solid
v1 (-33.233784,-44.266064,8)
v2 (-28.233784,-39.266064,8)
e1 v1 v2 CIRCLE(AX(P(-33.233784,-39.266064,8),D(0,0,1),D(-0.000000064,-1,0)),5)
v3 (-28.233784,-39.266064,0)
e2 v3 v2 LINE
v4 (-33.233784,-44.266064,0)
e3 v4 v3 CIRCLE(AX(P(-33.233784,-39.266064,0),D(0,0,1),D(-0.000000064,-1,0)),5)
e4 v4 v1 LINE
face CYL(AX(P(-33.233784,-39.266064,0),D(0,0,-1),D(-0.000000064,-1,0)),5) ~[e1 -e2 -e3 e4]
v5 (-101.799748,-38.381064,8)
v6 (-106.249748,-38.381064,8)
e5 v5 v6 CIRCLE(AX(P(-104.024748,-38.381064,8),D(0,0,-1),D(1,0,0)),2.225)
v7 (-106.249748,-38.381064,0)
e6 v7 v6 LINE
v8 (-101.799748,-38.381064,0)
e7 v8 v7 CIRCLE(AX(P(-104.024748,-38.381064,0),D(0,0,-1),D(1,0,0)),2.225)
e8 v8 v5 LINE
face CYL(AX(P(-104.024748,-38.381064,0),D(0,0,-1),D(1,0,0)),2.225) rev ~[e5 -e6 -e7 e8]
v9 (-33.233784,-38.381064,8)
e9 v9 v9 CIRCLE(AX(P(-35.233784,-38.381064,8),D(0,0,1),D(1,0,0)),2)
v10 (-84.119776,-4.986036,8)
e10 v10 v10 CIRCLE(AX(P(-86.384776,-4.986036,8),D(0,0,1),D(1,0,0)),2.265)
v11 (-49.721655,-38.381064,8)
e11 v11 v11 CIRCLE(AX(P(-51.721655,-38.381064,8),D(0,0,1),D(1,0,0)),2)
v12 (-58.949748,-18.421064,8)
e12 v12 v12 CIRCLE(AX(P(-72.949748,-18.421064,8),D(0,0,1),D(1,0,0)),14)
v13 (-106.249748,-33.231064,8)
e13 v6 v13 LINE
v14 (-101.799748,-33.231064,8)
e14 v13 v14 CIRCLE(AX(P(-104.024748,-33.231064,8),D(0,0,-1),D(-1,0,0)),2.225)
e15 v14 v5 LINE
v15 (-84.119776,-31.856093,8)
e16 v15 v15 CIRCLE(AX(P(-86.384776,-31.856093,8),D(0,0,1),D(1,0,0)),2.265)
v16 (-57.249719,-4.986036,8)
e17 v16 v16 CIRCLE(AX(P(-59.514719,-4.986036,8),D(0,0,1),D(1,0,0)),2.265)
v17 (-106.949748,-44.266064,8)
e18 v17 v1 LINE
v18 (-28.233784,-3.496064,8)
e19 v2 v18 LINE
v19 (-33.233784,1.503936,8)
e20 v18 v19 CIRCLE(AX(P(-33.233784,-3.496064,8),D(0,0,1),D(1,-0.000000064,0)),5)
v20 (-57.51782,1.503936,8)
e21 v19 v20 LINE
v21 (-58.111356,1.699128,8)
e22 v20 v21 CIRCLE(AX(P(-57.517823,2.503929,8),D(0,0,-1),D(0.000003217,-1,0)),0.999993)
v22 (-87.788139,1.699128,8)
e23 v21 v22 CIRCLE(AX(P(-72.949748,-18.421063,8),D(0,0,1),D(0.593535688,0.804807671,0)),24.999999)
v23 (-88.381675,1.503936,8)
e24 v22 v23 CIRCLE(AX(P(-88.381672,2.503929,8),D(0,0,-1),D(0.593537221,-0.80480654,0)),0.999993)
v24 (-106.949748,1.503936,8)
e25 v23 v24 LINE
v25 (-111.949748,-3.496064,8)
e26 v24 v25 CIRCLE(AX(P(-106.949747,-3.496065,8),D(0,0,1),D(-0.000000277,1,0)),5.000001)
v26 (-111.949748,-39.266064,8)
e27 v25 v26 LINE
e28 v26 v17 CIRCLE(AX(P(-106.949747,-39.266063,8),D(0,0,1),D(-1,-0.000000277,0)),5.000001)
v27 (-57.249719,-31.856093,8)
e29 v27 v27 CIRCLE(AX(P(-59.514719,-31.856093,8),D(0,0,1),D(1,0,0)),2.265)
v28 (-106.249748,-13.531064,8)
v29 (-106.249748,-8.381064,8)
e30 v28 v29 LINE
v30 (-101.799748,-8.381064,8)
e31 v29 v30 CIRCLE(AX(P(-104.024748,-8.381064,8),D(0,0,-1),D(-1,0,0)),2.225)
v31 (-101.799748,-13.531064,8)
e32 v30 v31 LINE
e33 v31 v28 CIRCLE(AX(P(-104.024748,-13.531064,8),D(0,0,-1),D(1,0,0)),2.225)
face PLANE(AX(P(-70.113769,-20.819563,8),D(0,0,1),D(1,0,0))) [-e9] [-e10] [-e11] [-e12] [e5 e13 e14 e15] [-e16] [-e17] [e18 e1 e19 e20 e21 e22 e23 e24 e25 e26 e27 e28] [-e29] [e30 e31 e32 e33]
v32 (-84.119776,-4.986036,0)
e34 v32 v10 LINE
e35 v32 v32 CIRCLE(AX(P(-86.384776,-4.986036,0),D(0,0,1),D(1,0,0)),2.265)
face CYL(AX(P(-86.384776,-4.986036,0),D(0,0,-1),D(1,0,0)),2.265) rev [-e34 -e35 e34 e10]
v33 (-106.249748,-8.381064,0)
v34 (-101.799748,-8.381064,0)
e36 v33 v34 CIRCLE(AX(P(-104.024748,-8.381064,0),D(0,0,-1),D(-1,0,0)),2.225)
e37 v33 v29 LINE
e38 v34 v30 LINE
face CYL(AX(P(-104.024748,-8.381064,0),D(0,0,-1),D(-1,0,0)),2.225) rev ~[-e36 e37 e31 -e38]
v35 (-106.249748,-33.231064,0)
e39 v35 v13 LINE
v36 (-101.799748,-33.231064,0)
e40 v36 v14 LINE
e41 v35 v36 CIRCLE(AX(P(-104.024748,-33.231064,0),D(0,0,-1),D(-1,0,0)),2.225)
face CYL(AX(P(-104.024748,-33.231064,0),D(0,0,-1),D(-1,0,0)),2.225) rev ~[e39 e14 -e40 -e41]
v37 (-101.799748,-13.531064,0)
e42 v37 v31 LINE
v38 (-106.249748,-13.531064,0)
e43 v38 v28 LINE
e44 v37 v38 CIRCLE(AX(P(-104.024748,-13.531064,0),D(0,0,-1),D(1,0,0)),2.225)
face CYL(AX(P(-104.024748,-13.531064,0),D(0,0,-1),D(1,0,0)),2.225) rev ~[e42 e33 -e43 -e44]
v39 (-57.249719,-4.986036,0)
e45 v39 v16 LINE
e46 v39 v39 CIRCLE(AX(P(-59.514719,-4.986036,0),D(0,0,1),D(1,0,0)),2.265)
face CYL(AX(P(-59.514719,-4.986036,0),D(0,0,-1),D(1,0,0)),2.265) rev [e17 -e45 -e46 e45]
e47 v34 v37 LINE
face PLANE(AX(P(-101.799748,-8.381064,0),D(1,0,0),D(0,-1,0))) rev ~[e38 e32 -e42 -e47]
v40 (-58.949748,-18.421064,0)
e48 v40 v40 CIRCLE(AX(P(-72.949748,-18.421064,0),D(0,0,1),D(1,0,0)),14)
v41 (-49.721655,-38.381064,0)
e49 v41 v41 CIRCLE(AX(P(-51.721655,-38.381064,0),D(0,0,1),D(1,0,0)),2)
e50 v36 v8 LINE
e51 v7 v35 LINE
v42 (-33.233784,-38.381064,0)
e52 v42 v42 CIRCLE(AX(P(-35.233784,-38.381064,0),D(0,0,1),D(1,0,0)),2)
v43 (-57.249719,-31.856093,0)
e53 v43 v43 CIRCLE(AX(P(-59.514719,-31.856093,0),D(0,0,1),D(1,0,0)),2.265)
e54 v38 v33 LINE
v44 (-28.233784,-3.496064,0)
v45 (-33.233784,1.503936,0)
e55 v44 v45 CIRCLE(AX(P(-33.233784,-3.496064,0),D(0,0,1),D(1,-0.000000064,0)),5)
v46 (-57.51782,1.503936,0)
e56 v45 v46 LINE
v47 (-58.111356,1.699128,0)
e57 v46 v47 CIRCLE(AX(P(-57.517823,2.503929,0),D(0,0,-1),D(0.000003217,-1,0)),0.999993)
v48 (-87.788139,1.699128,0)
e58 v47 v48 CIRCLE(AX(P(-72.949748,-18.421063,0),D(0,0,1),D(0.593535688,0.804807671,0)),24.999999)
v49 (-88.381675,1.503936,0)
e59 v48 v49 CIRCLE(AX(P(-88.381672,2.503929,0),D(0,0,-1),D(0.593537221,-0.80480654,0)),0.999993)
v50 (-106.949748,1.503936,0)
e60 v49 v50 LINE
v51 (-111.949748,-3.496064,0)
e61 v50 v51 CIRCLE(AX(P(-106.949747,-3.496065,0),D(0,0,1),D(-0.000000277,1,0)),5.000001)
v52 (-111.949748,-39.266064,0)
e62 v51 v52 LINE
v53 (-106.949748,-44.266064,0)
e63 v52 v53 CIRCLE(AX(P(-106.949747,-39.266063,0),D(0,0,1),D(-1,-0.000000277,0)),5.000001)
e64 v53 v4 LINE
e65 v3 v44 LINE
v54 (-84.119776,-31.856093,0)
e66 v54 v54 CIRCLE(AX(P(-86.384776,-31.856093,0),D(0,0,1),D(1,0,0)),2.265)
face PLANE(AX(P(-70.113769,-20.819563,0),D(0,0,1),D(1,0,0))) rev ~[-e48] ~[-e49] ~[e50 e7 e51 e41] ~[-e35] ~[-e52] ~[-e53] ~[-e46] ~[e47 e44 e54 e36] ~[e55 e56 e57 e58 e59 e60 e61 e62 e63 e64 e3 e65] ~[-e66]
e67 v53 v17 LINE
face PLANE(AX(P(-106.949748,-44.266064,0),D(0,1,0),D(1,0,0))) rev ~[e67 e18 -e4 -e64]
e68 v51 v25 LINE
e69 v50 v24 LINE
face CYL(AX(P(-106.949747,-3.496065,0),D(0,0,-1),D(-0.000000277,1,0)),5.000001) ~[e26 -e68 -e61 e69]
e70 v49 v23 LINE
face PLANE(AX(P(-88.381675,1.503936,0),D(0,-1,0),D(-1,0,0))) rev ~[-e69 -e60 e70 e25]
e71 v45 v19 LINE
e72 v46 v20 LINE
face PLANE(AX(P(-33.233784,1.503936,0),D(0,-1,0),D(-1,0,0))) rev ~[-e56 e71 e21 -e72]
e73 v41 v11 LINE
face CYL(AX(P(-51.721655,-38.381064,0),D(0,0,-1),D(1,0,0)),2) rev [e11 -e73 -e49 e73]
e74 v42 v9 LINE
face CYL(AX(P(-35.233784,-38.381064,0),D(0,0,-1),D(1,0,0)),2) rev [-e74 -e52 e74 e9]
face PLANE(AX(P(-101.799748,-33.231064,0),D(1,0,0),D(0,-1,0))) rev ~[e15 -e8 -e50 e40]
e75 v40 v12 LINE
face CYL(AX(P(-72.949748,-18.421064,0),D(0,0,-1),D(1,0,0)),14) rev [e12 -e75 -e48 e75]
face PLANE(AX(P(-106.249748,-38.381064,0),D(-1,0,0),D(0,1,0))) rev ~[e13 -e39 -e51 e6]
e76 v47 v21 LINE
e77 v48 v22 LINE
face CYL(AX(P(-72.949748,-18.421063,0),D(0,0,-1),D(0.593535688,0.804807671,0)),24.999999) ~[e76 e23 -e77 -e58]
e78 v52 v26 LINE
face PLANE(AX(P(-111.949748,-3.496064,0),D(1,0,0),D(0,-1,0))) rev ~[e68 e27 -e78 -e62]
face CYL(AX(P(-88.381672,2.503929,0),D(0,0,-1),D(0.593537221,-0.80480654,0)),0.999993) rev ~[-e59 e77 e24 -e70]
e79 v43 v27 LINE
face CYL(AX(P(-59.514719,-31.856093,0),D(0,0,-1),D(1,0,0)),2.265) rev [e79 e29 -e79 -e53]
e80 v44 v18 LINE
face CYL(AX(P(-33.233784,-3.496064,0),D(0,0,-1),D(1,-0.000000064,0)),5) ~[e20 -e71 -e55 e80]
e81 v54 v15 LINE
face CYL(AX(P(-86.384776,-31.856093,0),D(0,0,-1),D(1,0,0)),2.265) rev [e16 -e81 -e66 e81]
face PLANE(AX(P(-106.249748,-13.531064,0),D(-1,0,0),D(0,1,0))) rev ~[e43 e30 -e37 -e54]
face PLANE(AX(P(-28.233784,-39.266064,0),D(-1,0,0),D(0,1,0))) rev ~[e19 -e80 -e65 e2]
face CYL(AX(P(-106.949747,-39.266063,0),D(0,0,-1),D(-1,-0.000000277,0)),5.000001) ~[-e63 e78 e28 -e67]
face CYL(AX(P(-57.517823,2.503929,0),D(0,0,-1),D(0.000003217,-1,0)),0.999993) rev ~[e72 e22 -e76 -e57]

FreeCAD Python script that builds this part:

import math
import FreeCAD as App
import Part
import Sketcher
from FreeCAD import Vector
Q = App.Units.Quantity

doc = App.newDocument("Part")
body = doc.addObject("PartDesign::Body", "Body")

# Sketch on XY plane
sketch1 = doc.addObject("Sketcher::SketchObject", "Sketch")
body.addObject(sketch1)
sketch1.AttachmentSupport = (doc.XY_Plane, [""])
sketch1.MapMode = "FlatFace"
sketch1.addGeometry(Part.LineSegment(Vector(-88.381675, 1.503936, 0), Vector(-106.949748, 1.503936, 0)), False)
sketch1.addGeometry(Part.ArcOfCircle(Part.Circle(Vector(-106.949747, -3.496065, 0), Vector(0, 0, 1), 5.000001), math.radians(90.000016), math.radians(179.999984)), False)
sketch1.addGeometry(Part.LineSegment(Vector(-111.949748, -3.496064, 0), Vector(-111.949748, -39.266064, 0)), False)
sketch1.addGeometry(Part.ArcOfCircle(Part.Circle(Vector(-106.949747, -39.266063, 0), Vector(0, 0, 1), 5.000001), math.radians(-179.999984), math.radians(-90.000016)), False)
sketch1.addGeometry(Part.LineSegment(Vector(-106.949748, -44.266064, 0), Vector(-33.233784, -44.266064, 0)), False)
sketch1.addGeometry(Part.ArcOfCircle(Part.Circle(Vector(-33.233784, -39.266064, 0), Vector(0, 0, 1), 5), math.radians(-90.000004), math.radians(0.000004)), False)
sketch1.addGeometry(Part.LineSegment(Vector(-28.233784, -39.266064, 0), Vector(-28.233784, -3.496064, 0)), False)
sketch1.addGeometry(Part.ArcOfCircle(Part.Circle(Vector(-33.233784, -3.496064, 0), Vector(0, 0, 1), 5), math.radians(-0.000004), math.radians(90.000004)), False)
sketch1.addGeometry(Part.LineSegment(Vector(-33.233784, 1.503936, 0), Vector(-57.51782, 1.503936, 0)), False)
sketch1.addGeometry(Part.ArcOfCircle(Part.Circle(Vector(-57.517823, 2.503929, 0), Vector(0, 0, 1), 0.999993), math.radians(-126.408424), math.radians(-89.999816)), False)
sketch1.addGeometry(Part.ArcOfCircle(Part.Circle(Vector(-72.949748, -18.421063, 0), Vector(0, 0, 1), 24.999999), math.radians(53.591685), math.radians(126.408315)), False)
sketch1.addGeometry(Part.ArcOfCircle(Part.Circle(Vector(-88.381672, 2.503929, 0), Vector(0, 0, 1), 0.999993), math.radians(-90.000184), math.radians(-53.591576)), False)
sketch1.addGeometry(Part.ArcOfCircle(Part.Circle(Vector(-104.024748, -33.231064, 0), Vector(0, 0, 1), 2.225), math.radians(0), math.radians(180)), False)
sketch1.addGeometry(Part.LineSegment(Vector(-101.799748, -33.231064, 0), Vector(-101.799748, -38.381064, 0)), False)
sketch1.addGeometry(Part.ArcOfCircle(Part.Circle(Vector(-104.024748, -38.381064, 0), Vector(0, 0, 1), 2.225), math.radians(180), math.radians(360)), False)
sketch1.addGeometry(Part.LineSegment(Vector(-106.249748, -38.381064, 0), Vector(-106.249748, -33.231064, 0)), False)
sketch1.addGeometry(Part.Circle(Vector(-86.384776, -31.856093, 0), Vector(0, 0, 1), 2.265), False)
sketch1.addGeometry(Part.Circle(Vector(-51.721655, -38.381064, 0), Vector(0, 0, 1), 2), False)
sketch1.addGeometry(Part.Circle(Vector(-59.514719, -31.856093, 0), Vector(0, 0, 1), 2.265), False)
sketch1.addGeometry(Part.Circle(Vector(-35.233784, -38.381064, 0), Vector(0, 0, 1), 2), False)
sketch1.addGeometry(Part.Circle(Vector(-72.949748, -18.421064, 0), Vector(0, 0, 1), 14), False)
sketch1.addGeometry(Part.ArcOfCircle(Part.Circle(Vector(-104.024748, -13.531064, 0), Vector(0, 0, 1), 2.225), math.radians(180), math.radians(360)), False)
sketch1.addGeometry(Part.LineSegment(Vector(-106.249748, -13.531064, 0), Vector(-106.249748, -8.381064, 0)), False)
sketch1.addGeometry(Part.ArcOfCircle(Part.Circle(Vector(-104.024748, -8.381064, 0), Vector(0, 0, 1), 2.225), math.radians(0), math.radians(180)), False)
sketch1.addGeometry(Part.LineSegment(Vector(-101.799748, -8.381064, 0), Vector(-101.799748, -13.531064, 0)), False)
sketch1.addGeometry(Part.Circle(Vector(-86.384776, -4.986036, 0), Vector(0, 0, 1), 2.265), False)
sketch1.addGeometry(Part.Circle(Vector(-59.514719, -4.986036, 0), Vector(0, 0, 1), 2.265), False)
sketch1.addConstraint(Sketcher.Constraint("Tangent", 0, 2, 1, 1))
sketch1.addConstraint(Sketcher.Constraint("Tangent", 1, 2, 2, 1))
sketch1.addConstraint(Sketcher.Constraint("Tangent", 2, 2, 3, 1))
sketch1.addConstraint(Sketcher.Constraint("Tangent", 3, 2, 4, 1))
sketch1.addConstraint(Sketcher.Constraint("Tangent", 4, 2, 5, 1))
sketch1.addConstraint(Sketcher.Constraint("Tangent", 5, 2, 6, 1))
sketch1.addConstraint(Sketcher.Constraint("Tangent", 6, 2, 7, 1))
sketch1.addConstraint(Sketcher.Constraint("Tangent", 7, 2, 8, 1))
sketch1.addConstraint(Sketcher.Constraint("Coincident", 8, 2, 9, 2))
sketch1.addConstraint(Sketcher.Constraint("Tangent", 9, 1, 10, 1))
sketch1.addConstraint(Sketcher.Constraint("Tangent", 10, 2, 11, 2))
sketch1.addConstraint(Sketcher.Constraint("Coincident", 11, 1, 0, 1))
sketch1.addConstraint(Sketcher.Constraint("Tangent", 12, 1, 13, 1))
sketch1.addConstraint(Sketcher.Constraint("Tangent", 13, 2, 14, 2))
sketch1.addConstraint(Sketcher.Constraint("Tangent", 14, 1, 15, 1))
sketch1.addConstraint(Sketcher.Constraint("Tangent", 15, 2, 12, 2))
sketch1.addConstraint(Sketcher.Constraint("Tangent", 21, 1, 22, 1))
sketch1.addConstraint(Sketcher.Constraint("Tangent", 22, 2, 23, 2))
sketch1.addConstraint(Sketcher.Constraint("Tangent", 23, 1, 24, 1))
sketch1.addConstraint(Sketcher.Constraint("Tangent", 24, 2, 21, 2))
sketch1.addConstraint(Sketcher.Constraint("Horizontal", 0))
sketch1.addConstraint(Sketcher.Constraint("Vertical", 2))
sketch1.addConstraint(Sketcher.Constraint("Horizontal", 4))
sketch1.addConstraint(Sketcher.Constraint("Vertical", 6))
sketch1.addConstraint(Sketcher.Constraint("Horizontal", 8))
sketch1.addConstraint(Sketcher.Constraint("Vertical", 13))
sketch1.addConstraint(Sketcher.Constraint("Vertical", 15))
sketch1.addConstraint(Sketcher.Constraint("Vertical", 22))
sketch1.addConstraint(Sketcher.Constraint("Vertical", 24))
sketch1.addConstraint(Sketcher.Constraint("Coincident", 20, 3, 10, 3))
sketch1.addConstraint(Sketcher.Constraint("Equal", 1, 3))
sketch1.addConstraint(Sketcher.Constraint("Equal", 3, 5))
sketch1.addConstraint(Sketcher.Constraint("Equal", 5, 7))
sketch1.addConstraint(Sketcher.Constraint("Equal", 9, 11))
sketch1.addConstraint(Sketcher.Constraint("Equal", 16, 18))
sketch1.addConstraint(Sketcher.Constraint("Equal", 17, 19))
sketch1.addConstraint(Sketcher.Constraint("Equal", 14, 21))
sketch1.addConstraint(Sketcher.Constraint("Equal", 18, 25))
sketch1.addConstraint(Sketcher.Constraint("Equal", 25, 26))
sketch1.addConstraint(Sketcher.Constraint("Horizontal", 1, 3, 7, 3))
sketch1.addConstraint(Sketcher.Constraint("Horizontal", 14, 3, 17, 3))
sketch1.addConstraint(Sketcher.Constraint("Horizontal", 16, 3, 18, 3))
sketch1.addConstraint(Sketcher.Constraint("Horizontal", 17, 3, 19, 3))
sketch1.addConstraint(Sketcher.Constraint("Horizontal", 25, 3, 26, 3))
sketch1.addConstraint(Sketcher.Constraint("Vertical", 14, 3, 21, 3))
sketch1.addConstraint(Sketcher.Constraint("Vertical", 16, 3, 25, 3))
sketch1.addConstraint(Sketcher.Constraint("Vertical", 18, 3, 26, 3))
sketch1.addConstraint(Sketcher.Constraint("Equal", 15, 22))
sketch1.addConstraint(Sketcher.Constraint("Diameter", 17, Q("4 mm")))
sketch1.addConstraint(Sketcher.Constraint("Diameter", 20, Q("28 mm")))
sketch1.addConstraint(Sketcher.Constraint("Radius", 1, Q("5.000001 mm")))
sketch1.addConstraint(Sketcher.Constraint("Radius", 10, Q("24.999999 mm")))
sketch1.addConstraint(Sketcher.Constraint("Diameter", 16, Q("4.53 mm")))
sketch1.addConstraint(Sketcher.Constraint("Radius", 12, Q("2.225 mm")))
sketch1.addConstraint(Sketcher.Constraint("DistanceX", 1, 3, 10, 3, Q("33.999999 mm")))
sketch1.addConstraint(Sketcher.Constraint("DistanceX", 19, 3, 5, 3, Q("2 mm")))
sketch1.addConstraint(Sketcher.Constraint("DistanceY", 2, 2, 2, 1, Q("35.77 mm")))
sketch1.addConstraint(Sketcher.Constraint("DistanceY", 13, 2, 13, 1, Q("5.15 mm")))
sketch1.addConstraint(Sketcher.Constraint("DistanceY", 12, 3, 21, 3, Q("19.7 mm")))
sketch1.addConstraint(Sketcher.Constraint("DistanceX", 3, 3, 14, 1, Q("0.699999 mm")))
sketch1.addConstraint(Sketcher.Constraint("DistanceY", 12, 3, 10, 3, Q("14.810001 mm")))
sketch1.addConstraint(Sketcher.Constraint("Radius", 9, Q("0.999993 mm")))
sketch1.addConstraint(Sketcher.Constraint("DistanceY", 3, 3, 10, 3, Q("20.845 mm")))
sketch1.addConstraint(Sketcher.Constraint("DistanceX", 26, 3, 8, 2, Q("1.996899 mm")))
sketch1.addConstraint(Sketcher.Constraint("DistanceX", 11, 1, 25, 3, Q("1.996899 mm")))
sketch1.addConstraint(Sketcher.Constraint("DistanceX", 0, 2, 0, 1, Q("18.568073 mm")))
sketch1.addConstraint(Sketcher.Constraint("DistanceX", 4, 1, 4, 2, Q("73.715964 mm")))
sketch1.addConstraint(Sketcher.Constraint("DistanceX", 8, 2, 8, 1, Q("24.284036 mm")))
sketch1.addConstraint(Sketcher.Constraint("DistanceY", -1, 1, 9, 3, Q("2.503929 mm")))
sketch1.addConstraint(Sketcher.Constraint("DistanceX", 11, 3, -1, 1, Q("88.381672 mm")))
sketch1.addConstraint(Sketcher.Constraint("DistanceY", 12, 3, 16, 3, Q("1.374971 mm")))
sketch1.addConstraint(Sketcher.Constraint("DistanceX", 17, 3, 5, 3, Q("18.487871 mm")))
sketch1.addConstraint(Sketcher.Constraint("DistanceY", 20, 3, 25, 3, Q("13.435028 mm")))
pad1 = doc.addObject("PartDesign::Pad", "Pad")
body.addObject(pad1)
pad1.Profile = sketch1
pad1.Length = 8

doc.recompute()
